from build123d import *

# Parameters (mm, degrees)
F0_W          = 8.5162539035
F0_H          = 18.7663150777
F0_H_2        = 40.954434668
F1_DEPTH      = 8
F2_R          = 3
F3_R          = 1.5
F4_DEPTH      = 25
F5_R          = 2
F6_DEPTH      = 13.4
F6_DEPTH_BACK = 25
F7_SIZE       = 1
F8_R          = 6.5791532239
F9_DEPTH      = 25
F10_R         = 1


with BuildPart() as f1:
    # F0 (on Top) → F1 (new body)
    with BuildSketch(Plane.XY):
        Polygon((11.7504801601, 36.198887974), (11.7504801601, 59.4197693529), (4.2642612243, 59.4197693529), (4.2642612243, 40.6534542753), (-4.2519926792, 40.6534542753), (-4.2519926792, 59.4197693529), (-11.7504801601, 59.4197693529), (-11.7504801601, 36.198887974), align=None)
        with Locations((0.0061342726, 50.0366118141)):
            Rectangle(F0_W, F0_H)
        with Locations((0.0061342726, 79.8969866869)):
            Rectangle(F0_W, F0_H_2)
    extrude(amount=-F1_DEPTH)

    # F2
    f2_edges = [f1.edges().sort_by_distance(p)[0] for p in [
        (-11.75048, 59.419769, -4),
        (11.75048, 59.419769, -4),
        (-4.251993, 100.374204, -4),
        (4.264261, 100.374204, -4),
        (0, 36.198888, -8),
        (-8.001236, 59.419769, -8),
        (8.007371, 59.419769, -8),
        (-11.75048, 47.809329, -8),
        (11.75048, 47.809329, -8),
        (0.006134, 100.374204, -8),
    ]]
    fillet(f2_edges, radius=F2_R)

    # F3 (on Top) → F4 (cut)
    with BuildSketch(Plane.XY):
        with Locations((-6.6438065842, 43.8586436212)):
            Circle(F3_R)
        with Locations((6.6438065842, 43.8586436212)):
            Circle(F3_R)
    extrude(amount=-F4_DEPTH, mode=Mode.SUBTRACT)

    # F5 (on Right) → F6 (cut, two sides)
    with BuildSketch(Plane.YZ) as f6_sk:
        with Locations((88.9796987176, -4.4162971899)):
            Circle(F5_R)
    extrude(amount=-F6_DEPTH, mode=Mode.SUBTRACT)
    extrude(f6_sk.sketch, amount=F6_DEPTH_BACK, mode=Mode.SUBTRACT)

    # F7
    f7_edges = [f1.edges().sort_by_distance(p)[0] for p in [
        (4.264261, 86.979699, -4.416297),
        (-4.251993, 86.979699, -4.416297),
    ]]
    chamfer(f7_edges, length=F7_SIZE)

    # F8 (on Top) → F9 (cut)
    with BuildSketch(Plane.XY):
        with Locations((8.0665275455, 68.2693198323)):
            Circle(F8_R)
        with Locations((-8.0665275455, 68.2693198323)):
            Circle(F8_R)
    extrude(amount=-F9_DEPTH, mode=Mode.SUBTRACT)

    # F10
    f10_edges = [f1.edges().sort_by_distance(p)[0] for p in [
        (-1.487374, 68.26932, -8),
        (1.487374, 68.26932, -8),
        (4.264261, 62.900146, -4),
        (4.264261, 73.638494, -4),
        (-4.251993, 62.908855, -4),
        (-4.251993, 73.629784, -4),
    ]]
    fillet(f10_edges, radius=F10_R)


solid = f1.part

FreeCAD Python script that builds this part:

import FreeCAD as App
import Part
import Sketcher
from FreeCAD import Vector


def edges_at(feature, points):
    """Names of the edges that pass closest to the given points."""
    edges = feature.Shape.Edges
    near = lambda p: min(range(len(edges)), key=lambda i: edges[i].distToShape(Part.Vertex(*p))[0])
    return sorted({f"Edge{near(p) + 1}" for p in points})

doc = App.newDocument("Part")
body = doc.addObject("PartDesign::Body", "Body")

# Sketch on XY plane
sketch1 = body.newObject("Sketcher::SketchObject", "Sketch")
sketch1.AttachmentSupport = (doc.getObject("XY_Plane"), [""])
sketch1.MapMode = "FlatFace"
sketch1.addGeometry(Part.LineSegment(Vector(12, 36, 0), Vector(12, 59, 0)), False)
sketch1.addGeometry(Part.LineSegment(Vector(12, 59, 0), Vector(4, 59, 0)), False)
sketch1.addGeometry(Part.LineSegment(Vector(4, 59, 0), Vector(4, 100, 0)), False)
sketch1.addGeometry(Part.LineSegment(Vector(4, 100, 0), Vector(-4, 100, 0)), False)
sketch1.addGeometry(Part.LineSegment(Vector(-4, 100, 0), Vector(-4, 59, 0)), False)
sketch1.addGeometry(Part.LineSegment(Vector(-4, 59, 0), Vector(-12, 59, 0)), False)
sketch1.addGeometry(Part.LineSegment(Vector(-12, 59, 0), Vector(-12, 36, 0)), False)
sketch1.addGeometry(Part.LineSegment(Vector(-12, 36, 0), Vector(12, 36, 0)), False)
sketch1.addConstraint(Sketcher.Constraint("Coincident", 0, 2, 1, 1))
sketch1.addConstraint(Sketcher.Constraint("Coincident", 1, 2, 2, 1))
sketch1.addConstraint(Sketcher.Constraint("Coincident", 2, 2, 3, 1))
sketch1.addConstraint(Sketcher.Constraint("Coincident", 3, 2, 4, 1))
sketch1.addConstraint(Sketcher.Constraint("Coincident", 4, 2, 5, 1))
sketch1.addConstraint(Sketcher.Constraint("Coincident", 5, 2, 6, 1))
sketch1.addConstraint(Sketcher.Constraint("Coincident", 6, 2, 7, 1))
sketch1.addConstraint(Sketcher.Constraint("Coincident", 7, 2, 0, 1))
sketch1.addConstraint(Sketcher.Constraint("Vertical", 0))
sketch1.addConstraint(Sketcher.Constraint("Horizontal", 1))
sketch1.addConstraint(Sketcher.Constraint("Vertical", 2))
sketch1.addConstraint(Sketcher.Constraint("Horizontal", 3))
sketch1.addConstraint(Sketcher.Constraint("Vertical", 4))
sketch1.addConstraint(Sketcher.Constraint("Horizontal", 5))
sketch1.addConstraint(Sketcher.Constraint("Vertical", 6))
sketch1.addConstraint(Sketcher.Constraint("Horizontal", 7))
sketch1.addConstraint(Sketcher.Constraint("Symmetric", 0, 2, 5, 2, -2))
sketch1.addConstraint(Sketcher.Constraint("DistanceX", 1, 2, 1, 1, 7.486219))
sketch1.addConstraint(Sketcher.Constraint("DistanceX", 7, 1, 7, 2, 23.50096))
sketch1.addConstraint(Sketcher.Constraint("DistanceY", 0, 1, 0, 2, 23.220881))
sketch1.addConstraint(Sketcher.Constraint("DistanceX", 3, 2, 3, 1, 8.516254))
sketch1.addConstraint(Sketcher.Constraint("DistanceY", 2, 1, 2, 2, 40.954435))
sketch1.addConstraint(Sketcher.Constraint("DistanceY", -1, 1, 0, 2, 59.419769))
pad1 = body.newObject("PartDesign::Pad", "Pad")
pad1.Profile = sketch1
pad1.Length = 8
pad1.Reversed = True
doc.recompute()

fillet = body.newObject("PartDesign::Fillet", "Fillet")
fillet.Base = (pad1, edges_at(pad1, [
    (-11.75, 59.42, -4),
    (11.75, 59.42, -4),
    (-4.252, 100.374, -4),
    (4.264, 100.374, -4),
    (0, 36.199, -8),
    (-8.001, 59.42, -8),
    (8.007, 59.42, -8),
    (-11.75, 47.809, -8),
    (11.75, 47.809, -8),
    (0.006, 100.374, -8),
]))
fillet.Radius = 3

# Sketch on XY plane
sketch2 = body.newObject("Sketcher::SketchObject", "Sketch001")
sketch2.AttachmentSupport = (doc.getObject("XY_Plane"), [""])
sketch2.MapMode = "FlatFace"
sketch2.addGeometry(Part.Circle(Vector(-6.6, 43.9, 0), Vector(0, 0, 1), 1.5), False)
sketch2.addGeometry(Part.Circle(Vector(6.6, 43.9, 0), Vector(0, 0, 1), 1.5), False)
sketch2.addConstraint(Sketcher.Constraint("Equal", 0, 1))
sketch2.addConstraint(Sketcher.Constraint("Symmetric", 0, 3, 1, 3, -2))
sketch2.addConstraint(Sketcher.Constraint("Diameter", 0, 3.0))
sketch2.addConstraint(Sketcher.Constraint("DistanceX", 0, 3, -1, 1, 6.643807))
sketch2.addConstraint(Sketcher.Constraint("DistanceY", -1, 1, 0, 3, 43.858644))
pocket1 = body.newObject("PartDesign::Pocket", "Pocket")
pocket1.Profile = sketch2
pocket1.Length = 25

# Sketch on YZ plane
sketch3 = body.newObject("Sketcher::SketchObject", "Sketch002")
sketch3.AttachmentSupport = (doc.getObject("YZ_Plane"), [""])
sketch3.MapMode = "FlatFace"
sketch3.addGeometry(Part.Circle(Vector(89, -4.4, 0), Vector(0, 0, 1), 2), False)
sketch3.addConstraint(Sketcher.Constraint("Diameter", 0, 4.0))
sketch3.addConstraint(Sketcher.Constraint("DistanceX", -1, 1, 0, 3, 88.979699))
sketch3.addConstraint(Sketcher.Constraint("DistanceY", 0, 3, -1, 1, 4.416297))
pocket2 = body.newObject("PartDesign::Pocket", "Pocket001")
pocket2.Profile = sketch3
pocket2.Type = "ThroughAll"
pocket2.Midplane = True
doc.recompute()

chamfer = body.newObject("PartDesign::Chamfer", "Chamfer")
chamfer.Base = (pocket2, edges_at(pocket2, [(4.264, 86.98, -4.416), (-4.252, 86.98, -4.416)]))
chamfer.Size = 1

# Sketch on XY plane
sketch4 = body.newObject("Sketcher::SketchObject", "Sketch003")
sketch4.AttachmentSupport = (doc.getObject("XY_Plane"), [""])
sketch4.MapMode = "FlatFace"
sketch4.addGeometry(Part.Circle(Vector(8, 68, 0), Vector(0, 0, 1), 7), False)
sketch4.addGeometry(Part.Circle(Vector(-8, 68, 0), Vector(0, 0, 1), 7), False)
sketch4.addConstraint(Sketcher.Constraint("Equal", 0, 1))
sketch4.addConstraint(Sketcher.Constraint("Symmetric", 0, 3, 1, 3, -2))
sketch4.addConstraint(Sketcher.Constraint("Diameter", 0, 13.158306))
sketch4.addConstraint(Sketcher.Constraint("DistanceY", -1, 1, 0, 3, 68.26932))
sketch4.addConstraint(Sketcher.Constraint("DistanceX", -1, 1, 0, 3, 8.066528))
pocket3 = body.newObject("PartDesign::Pocket", "Pocket002")
pocket3.Profile = sketch4
pocket3.Length = 25
doc.recompute()

fillet2 = body.newObject("PartDesign::Fillet", "Fillet001")
fillet2.Base = (pocket3, edges_at(pocket3, [
    (-1.487, 68.269, -8),
    (1.487, 68.269, -8),
    (4.264, 62.9, -4),
    (4.264, 73.638, -4),
    (-4.252, 62.909, -4),
    (-4.252, 73.63, -4),
]))
fillet2.Radius = 1

doc.recompute()
